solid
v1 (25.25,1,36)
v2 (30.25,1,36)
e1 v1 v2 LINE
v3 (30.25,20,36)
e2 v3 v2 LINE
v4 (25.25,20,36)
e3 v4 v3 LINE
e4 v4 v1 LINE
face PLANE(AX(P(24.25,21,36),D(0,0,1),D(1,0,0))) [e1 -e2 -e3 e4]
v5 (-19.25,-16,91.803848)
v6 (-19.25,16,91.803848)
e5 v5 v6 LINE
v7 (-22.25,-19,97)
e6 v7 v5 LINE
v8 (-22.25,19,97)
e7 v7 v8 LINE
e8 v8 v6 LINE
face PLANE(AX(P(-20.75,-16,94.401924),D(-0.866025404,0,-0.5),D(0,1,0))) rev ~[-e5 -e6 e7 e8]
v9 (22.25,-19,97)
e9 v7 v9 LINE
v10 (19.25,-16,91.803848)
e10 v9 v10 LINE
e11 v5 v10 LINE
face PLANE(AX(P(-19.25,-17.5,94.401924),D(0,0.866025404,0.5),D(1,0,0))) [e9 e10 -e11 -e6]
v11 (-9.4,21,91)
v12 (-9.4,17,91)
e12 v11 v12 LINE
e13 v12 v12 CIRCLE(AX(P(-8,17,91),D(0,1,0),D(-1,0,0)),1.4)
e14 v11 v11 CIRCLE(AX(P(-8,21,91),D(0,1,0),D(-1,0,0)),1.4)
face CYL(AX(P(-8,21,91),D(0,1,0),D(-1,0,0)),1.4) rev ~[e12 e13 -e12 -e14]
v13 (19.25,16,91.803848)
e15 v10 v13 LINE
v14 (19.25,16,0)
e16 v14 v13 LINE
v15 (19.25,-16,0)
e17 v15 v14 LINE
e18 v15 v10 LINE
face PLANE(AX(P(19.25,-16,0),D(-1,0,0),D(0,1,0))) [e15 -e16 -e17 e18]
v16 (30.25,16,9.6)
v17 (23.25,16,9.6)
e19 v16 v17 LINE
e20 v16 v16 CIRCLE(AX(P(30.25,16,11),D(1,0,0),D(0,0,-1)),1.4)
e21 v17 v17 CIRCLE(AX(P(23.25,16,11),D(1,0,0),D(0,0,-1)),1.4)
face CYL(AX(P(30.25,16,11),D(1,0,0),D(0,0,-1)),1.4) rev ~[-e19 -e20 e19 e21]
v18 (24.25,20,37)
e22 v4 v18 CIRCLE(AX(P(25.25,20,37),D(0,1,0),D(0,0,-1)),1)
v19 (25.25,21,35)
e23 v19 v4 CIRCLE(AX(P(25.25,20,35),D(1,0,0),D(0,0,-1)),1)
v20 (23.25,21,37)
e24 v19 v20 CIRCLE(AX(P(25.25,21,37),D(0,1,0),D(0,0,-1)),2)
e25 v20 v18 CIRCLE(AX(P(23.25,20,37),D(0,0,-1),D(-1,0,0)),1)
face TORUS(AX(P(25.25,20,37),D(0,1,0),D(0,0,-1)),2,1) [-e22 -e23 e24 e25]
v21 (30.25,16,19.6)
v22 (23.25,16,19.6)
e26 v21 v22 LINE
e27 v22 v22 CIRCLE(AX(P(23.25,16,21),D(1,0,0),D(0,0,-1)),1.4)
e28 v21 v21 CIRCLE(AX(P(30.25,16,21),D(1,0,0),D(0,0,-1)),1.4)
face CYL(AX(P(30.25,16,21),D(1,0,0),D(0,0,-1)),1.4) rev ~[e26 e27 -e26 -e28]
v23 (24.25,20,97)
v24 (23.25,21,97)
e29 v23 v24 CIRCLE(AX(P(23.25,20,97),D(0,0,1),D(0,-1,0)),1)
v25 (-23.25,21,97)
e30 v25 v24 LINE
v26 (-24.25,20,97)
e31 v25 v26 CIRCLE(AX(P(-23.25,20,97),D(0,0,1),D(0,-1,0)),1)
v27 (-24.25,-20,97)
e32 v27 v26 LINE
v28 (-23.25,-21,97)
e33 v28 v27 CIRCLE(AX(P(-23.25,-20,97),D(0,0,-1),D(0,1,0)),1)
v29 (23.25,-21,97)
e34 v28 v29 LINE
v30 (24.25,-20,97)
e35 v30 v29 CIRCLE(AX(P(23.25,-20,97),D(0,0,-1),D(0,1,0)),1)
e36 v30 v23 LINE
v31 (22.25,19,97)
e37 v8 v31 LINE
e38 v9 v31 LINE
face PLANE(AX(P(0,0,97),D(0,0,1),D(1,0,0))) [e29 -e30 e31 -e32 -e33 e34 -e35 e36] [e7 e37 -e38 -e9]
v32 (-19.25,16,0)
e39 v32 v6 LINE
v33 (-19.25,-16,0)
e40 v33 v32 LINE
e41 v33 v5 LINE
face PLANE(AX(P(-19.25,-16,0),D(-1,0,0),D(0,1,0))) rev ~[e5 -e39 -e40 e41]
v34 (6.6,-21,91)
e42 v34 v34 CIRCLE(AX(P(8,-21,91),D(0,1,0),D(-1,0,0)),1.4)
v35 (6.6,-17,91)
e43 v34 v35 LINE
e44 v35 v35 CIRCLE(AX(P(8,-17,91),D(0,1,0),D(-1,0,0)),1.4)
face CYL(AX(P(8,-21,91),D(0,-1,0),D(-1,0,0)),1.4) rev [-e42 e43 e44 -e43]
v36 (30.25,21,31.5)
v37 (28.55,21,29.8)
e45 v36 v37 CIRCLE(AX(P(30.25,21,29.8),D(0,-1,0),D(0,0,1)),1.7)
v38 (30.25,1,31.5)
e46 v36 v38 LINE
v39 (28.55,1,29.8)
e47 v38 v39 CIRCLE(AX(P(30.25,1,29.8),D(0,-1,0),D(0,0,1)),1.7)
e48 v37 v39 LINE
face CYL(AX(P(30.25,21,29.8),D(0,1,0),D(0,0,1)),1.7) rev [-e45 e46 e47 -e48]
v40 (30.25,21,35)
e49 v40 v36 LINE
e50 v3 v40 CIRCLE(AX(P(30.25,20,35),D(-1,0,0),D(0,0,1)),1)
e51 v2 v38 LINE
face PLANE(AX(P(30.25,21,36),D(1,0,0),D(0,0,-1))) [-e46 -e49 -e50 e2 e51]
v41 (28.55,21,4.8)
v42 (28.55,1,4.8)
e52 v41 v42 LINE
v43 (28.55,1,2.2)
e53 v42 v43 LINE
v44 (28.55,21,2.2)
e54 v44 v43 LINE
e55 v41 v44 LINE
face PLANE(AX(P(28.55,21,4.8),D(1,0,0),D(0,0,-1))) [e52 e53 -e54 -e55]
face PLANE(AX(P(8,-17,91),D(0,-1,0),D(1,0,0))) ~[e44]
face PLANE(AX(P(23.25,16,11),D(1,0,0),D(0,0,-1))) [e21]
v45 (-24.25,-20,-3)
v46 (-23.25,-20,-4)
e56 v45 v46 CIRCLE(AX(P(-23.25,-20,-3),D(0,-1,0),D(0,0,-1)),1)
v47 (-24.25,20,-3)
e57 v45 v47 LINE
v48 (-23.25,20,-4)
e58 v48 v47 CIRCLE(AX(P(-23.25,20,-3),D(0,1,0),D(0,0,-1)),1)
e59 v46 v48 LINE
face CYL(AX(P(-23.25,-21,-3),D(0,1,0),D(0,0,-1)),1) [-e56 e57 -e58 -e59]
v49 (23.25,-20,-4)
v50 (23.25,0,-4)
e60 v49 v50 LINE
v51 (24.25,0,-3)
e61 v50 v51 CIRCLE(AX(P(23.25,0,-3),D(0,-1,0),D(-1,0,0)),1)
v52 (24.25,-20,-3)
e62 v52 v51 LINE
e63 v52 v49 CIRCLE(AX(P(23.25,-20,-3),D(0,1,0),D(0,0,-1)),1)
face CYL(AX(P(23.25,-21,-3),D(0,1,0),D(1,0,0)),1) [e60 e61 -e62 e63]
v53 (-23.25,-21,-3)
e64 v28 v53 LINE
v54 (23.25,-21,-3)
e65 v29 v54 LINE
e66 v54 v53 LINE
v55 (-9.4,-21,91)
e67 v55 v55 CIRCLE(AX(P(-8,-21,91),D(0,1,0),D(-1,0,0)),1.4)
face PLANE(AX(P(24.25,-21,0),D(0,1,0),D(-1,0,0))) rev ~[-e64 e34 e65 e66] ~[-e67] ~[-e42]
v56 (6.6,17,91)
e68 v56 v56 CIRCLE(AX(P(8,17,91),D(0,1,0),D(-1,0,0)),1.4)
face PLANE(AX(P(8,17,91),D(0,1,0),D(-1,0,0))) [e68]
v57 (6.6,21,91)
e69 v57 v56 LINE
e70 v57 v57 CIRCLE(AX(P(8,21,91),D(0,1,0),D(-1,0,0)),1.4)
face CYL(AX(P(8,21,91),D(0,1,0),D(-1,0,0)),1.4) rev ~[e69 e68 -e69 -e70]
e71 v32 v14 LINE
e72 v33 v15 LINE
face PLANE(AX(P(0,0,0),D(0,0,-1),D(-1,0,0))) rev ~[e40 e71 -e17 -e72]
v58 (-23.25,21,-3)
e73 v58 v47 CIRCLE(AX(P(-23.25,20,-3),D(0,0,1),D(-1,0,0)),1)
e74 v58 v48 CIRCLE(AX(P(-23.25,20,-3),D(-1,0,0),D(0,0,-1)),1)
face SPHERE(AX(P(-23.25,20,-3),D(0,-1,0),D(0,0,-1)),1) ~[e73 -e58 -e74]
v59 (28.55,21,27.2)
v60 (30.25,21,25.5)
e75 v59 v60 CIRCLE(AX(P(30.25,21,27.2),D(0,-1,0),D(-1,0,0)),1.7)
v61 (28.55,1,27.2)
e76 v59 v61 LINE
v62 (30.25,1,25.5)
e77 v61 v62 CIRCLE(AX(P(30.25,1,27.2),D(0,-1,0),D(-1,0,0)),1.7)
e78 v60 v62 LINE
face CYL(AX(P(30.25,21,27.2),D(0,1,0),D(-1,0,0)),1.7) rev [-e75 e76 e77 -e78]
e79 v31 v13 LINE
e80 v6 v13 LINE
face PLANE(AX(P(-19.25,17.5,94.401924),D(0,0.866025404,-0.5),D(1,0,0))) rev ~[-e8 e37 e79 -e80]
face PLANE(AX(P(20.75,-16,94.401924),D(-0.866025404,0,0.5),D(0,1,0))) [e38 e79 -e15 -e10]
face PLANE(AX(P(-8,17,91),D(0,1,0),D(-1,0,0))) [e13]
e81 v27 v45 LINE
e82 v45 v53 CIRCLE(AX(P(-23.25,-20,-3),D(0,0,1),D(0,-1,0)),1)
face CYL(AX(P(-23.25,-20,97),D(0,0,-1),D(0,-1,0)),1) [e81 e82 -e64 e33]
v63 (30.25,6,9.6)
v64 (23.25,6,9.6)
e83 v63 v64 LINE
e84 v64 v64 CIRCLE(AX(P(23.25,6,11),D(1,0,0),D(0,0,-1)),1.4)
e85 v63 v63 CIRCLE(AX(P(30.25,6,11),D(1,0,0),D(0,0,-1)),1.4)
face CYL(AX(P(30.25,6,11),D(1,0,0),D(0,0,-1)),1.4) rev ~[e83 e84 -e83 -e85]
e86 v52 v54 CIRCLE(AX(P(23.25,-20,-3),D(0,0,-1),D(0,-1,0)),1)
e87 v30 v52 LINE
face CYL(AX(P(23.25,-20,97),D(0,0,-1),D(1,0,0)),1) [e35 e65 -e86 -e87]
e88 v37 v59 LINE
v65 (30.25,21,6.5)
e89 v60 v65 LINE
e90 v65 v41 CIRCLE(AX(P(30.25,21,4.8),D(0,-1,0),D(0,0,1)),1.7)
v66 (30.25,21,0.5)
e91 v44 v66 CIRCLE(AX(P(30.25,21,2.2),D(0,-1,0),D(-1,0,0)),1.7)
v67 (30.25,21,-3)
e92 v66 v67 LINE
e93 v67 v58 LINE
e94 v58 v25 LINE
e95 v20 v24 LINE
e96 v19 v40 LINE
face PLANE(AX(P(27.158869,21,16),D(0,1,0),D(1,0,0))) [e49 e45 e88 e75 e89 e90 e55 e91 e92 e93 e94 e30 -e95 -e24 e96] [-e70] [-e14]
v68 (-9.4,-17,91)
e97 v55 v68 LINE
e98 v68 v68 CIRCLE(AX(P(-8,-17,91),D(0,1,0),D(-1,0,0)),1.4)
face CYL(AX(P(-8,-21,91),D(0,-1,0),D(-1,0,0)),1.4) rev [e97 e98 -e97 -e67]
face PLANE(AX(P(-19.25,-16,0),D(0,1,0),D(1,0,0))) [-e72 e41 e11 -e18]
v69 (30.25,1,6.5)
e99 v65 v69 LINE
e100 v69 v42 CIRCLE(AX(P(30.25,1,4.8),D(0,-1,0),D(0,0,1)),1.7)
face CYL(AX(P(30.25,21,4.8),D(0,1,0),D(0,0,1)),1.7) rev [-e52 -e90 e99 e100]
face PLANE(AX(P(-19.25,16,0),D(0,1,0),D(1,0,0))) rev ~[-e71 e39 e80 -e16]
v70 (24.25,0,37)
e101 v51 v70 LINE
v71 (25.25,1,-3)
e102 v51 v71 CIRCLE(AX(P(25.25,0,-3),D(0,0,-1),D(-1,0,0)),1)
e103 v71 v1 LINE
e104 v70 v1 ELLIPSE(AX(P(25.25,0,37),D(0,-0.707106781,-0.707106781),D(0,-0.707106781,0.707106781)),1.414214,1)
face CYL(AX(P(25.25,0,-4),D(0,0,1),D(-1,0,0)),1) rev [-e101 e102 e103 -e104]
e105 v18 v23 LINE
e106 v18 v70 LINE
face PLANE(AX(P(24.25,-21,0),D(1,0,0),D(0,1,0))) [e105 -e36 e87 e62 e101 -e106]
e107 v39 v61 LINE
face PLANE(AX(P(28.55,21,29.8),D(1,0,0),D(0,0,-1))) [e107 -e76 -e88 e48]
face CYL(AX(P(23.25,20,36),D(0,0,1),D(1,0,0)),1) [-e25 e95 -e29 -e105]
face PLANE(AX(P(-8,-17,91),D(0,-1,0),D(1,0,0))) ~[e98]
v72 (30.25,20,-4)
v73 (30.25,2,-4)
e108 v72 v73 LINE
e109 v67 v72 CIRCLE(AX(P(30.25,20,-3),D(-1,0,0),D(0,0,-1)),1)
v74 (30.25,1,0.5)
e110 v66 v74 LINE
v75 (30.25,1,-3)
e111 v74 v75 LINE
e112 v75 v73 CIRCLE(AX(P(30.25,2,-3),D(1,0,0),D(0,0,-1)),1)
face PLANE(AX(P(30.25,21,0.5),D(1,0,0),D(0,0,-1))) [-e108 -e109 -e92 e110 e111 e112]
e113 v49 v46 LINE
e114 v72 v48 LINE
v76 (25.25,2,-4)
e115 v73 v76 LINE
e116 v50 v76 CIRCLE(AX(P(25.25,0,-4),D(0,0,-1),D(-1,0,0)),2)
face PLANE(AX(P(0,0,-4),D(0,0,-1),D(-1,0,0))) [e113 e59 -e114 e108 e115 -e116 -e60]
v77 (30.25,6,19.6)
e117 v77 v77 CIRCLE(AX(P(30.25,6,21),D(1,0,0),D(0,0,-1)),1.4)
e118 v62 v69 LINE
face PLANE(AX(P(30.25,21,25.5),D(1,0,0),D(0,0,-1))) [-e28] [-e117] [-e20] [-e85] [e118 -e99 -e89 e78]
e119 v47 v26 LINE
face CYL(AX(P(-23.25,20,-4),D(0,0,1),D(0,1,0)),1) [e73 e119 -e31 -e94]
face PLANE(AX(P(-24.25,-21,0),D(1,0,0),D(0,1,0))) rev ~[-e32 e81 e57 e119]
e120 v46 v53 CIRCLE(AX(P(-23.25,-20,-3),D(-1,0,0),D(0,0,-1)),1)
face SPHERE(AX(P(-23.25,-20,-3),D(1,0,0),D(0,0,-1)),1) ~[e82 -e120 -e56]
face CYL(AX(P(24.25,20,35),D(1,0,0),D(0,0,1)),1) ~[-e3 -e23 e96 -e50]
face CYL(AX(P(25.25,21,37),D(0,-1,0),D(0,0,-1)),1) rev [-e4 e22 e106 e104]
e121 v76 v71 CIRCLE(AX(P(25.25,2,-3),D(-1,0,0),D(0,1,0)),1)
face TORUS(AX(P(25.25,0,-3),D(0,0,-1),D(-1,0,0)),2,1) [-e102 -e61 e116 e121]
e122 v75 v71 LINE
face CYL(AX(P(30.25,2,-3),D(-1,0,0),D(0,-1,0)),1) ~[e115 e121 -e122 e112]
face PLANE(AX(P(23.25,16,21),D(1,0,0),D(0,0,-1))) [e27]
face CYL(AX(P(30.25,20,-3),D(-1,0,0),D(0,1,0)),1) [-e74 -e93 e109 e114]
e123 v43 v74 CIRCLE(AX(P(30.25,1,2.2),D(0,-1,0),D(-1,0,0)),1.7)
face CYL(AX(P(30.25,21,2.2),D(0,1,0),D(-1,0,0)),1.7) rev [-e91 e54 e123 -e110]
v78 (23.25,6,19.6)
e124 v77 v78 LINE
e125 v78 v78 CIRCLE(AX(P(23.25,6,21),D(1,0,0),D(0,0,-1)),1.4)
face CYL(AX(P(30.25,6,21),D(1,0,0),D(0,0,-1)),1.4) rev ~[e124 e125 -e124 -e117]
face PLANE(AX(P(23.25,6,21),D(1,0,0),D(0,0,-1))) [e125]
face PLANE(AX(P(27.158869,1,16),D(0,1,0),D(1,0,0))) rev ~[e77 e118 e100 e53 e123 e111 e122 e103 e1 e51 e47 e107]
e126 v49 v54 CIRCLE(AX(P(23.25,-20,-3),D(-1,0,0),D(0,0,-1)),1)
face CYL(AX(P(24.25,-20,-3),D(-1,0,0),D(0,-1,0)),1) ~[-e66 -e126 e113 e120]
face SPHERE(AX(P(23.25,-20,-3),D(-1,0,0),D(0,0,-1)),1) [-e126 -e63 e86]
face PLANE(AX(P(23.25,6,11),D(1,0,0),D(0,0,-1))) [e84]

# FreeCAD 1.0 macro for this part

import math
import FreeCAD as App
import Part
import Sketcher

V = App.Vector


def edges_at(feature, points):
    """Names of the edges that pass closest to the given points."""
    edges = feature.Shape.Edges
    near = lambda p: min(range(len(edges)), key=lambda i: edges[i].distToShape(Part.Vertex(*p))[0])
    return sorted({f"Edge{near(p) + 1}" for p in points})

doc = App.newDocument("Part")
body = doc.addObject("PartDesign::Body", "Body")

sketch1 = body.newObject("Sketcher::SketchObject", "Sketch")
sketch1.AttachmentSupport = (doc.getObject("XY_Plane"), [""])
sketch1.MapMode = "FlatFace"
sketch1.addGeometry([
    Part.LineSegment(V(-24, 21, 0), V(-24, -21, 0)),
    Part.LineSegment(V(-24, -21, 0), V(24, -21, 0)),
    Part.LineSegment(V(24, -21, 0), V(24, 21, 0)),
    Part.LineSegment(V(24, 21, 0), V(-24, 21, 0)),
    Part.LineSegment(V(19, -16, 0), V(-19, -16, 0)),
    Part.LineSegment(V(-19, -16, 0), V(-19, 16, 0)),
    Part.LineSegment(V(-19, 16, 0), V(19, 16, 0)),
    Part.LineSegment(V(19, 16, 0), V(19, -16, 0)),
], False)
sketch1.addConstraint([
    Sketcher.Constraint("Coincident", 0, 2, 1, 1),
    Sketcher.Constraint("Coincident", 1, 2, 2, 1),
    Sketcher.Constraint("Coincident", 2, 2, 3, 1),
    Sketcher.Constraint("Coincident", 3, 2, 0, 1),
    Sketcher.Constraint("Coincident", 4, 2, 5, 1),
    Sketcher.Constraint("Coincident", 5, 2, 6, 1),
    Sketcher.Constraint("Coincident", 6, 2, 7, 1),
    Sketcher.Constraint("Coincident", 7, 2, 4, 1),
    Sketcher.Constraint("Vertical", 0),
    Sketcher.Constraint("Horizontal", 1),
    Sketcher.Constraint("Vertical", 2),
    Sketcher.Constraint("Horizontal", 3),
    Sketcher.Constraint("Horizontal", 4),
    Sketcher.Constraint("Vertical", 5),
    Sketcher.Constraint("Horizontal", 6),
    Sketcher.Constraint("Vertical", 7),
    Sketcher.Constraint("Symmetric", 0, 2, 2, 2, -1, 1),
    Sketcher.Constraint("Symmetric", 4, 2, 6, 2, -1, 1),
    Sketcher.Constraint("DistanceY", 0, 2, 0, 1, 42.0),
    Sketcher.Constraint("DistanceY", 5, 1, 5, 2, 32.0),
    Sketcher.Constraint("DistanceX", 1, 1, 1, 2, 48.5),
    Sketcher.Constraint("DistanceX", 4, 2, 4, 1, 38.5),
])
pad1 = body.newObject("PartDesign::Pad", "Pad")
pad1.Profile = sketch1
pad1.Length = 97

sketch2 = body.newObject("Sketcher::SketchObject", "Sketch001")
sketch2.AttachmentSupport = (doc.getObject("XY_Plane"), [""])
sketch2.MapMode = "FlatFace"
sketch2.addGeometry([
    Part.LineSegment(V(24, 21, 0), V(24, -21, 0)),
    Part.LineSegment(V(24, -21, 0), V(-24, -21, 0)),
    Part.LineSegment(V(-24, -21, 0), V(-24, 21, 0)),
    Part.LineSegment(V(-24, 21, 0), V(24, 21, 0)),
], False)
sketch2.addConstraint([
    Sketcher.Constraint("Coincident", 0, 2, 1, 1),
    Sketcher.Constraint("Coincident", 1, 2, 2, 1),
    Sketcher.Constraint("Coincident", 2, 2, 3, 1),
    Sketcher.Constraint("Coincident", 3, 2, 0, 1),
    Sketcher.Constraint("Vertical", 0),
    Sketcher.Constraint("Horizontal", 1),
    Sketcher.Constraint("Vertical", 2),
    Sketcher.Constraint("Horizontal", 3),
    Sketcher.Constraint("Symmetric", 0, 2, 2, 2, -1, 1),
    Sketcher.Constraint("DistanceY", 0, 2, 0, 1, 42.0),
    Sketcher.Constraint("DistanceX", 1, 2, 1, 1, 48.5),
])
pad2 = body.newObject("PartDesign::Pad", "Pad001")
pad2.Profile = sketch2
pad2.Length = 4
pad2.Reversed = True

sketch3 = body.newObject("Sketcher::SketchObject", "Sketch002")
sketch3.AttachmentSupport = (doc.getObject("XZ_Plane"), [""])
sketch3.MapMode = "FlatFace"
sketch3.AttachmentOffset = App.Placement(V(0, 0, -21), App.Rotation())
sketch3.addGeometry([
    Part.LineSegment(V(24.2, -4, 0), V(24.2, 36, 0)),
    Part.LineSegment(V(24.2, 36, 0), V(30.2, 36, 0)),
    Part.LineSegment(V(30.2, 36, 0), V(30.2, 31.5, 0)),
    Part.ArcOfCircle(Part.Circle(V(30.2, 29.8, 0), V(0, 0, 1), 1.7), math.radians(90), math.radians(180)),
    Part.LineSegment(V(28.6, 29.8, 0), V(28.6, 27.2, 0)),
    Part.ArcOfCircle(Part.Circle(V(30.2, 27.2, 0), V(0, 0, 1), 1.7), math.radians(180), math.radians(270)),
    Part.LineSegment(V(30.2, 25.5, 0), V(30.2, 6.5, 0)),
    Part.ArcOfCircle(Part.Circle(V(30.2, 4.8, 0), V(0, 0, 1), 1.7), math.radians(90), math.radians(180)),
    Part.LineSegment(V(28.6, 4.8, 0), V(28.6, 2.2, 0)),
    Part.ArcOfCircle(Part.Circle(V(30.2, 2.2, 0), V(0, 0, 1), 1.7), math.radians(180), math.radians(270)),
    Part.LineSegment(V(30.2, 0.5, 0), V(30.2, -4, 0)),
    Part.LineSegment(V(30.2, -4, 0), V(24.2, -4, 0)),
], False)
sketch3.addConstraint([
    Sketcher.Constraint("Coincident", 0, 2, 1, 1),
    Sketcher.Constraint("Coincident", 1, 2, 2, 1),
    Sketcher.Constraint("Coincident", 2, 2, 3, 1),
    Sketcher.Constraint("Tangent", 3, 2, 4, 1),
    Sketcher.Constraint("Tangent", 4, 2, 5, 1),
    Sketcher.Constraint("Coincident", 5, 2, 6, 1),
    Sketcher.Constraint("Coincident", 6, 2, 7, 1),
    Sketcher.Constraint("Tangent", 7, 2, 8, 1),
    Sketcher.Constraint("Tangent", 8, 2, 9, 1),
    Sketcher.Constraint("Coincident", 9, 2, 10, 1),
    Sketcher.Constraint("Coincident", 10, 2, 11, 1),
    Sketcher.Constraint("Coincident", 11, 2, 0, 1),
    Sketcher.Constraint("Vertical", 0),
    Sketcher.Constraint("Horizontal", 1),
    Sketcher.Constraint("Vertical", 2),
    Sketcher.Constraint("Vertical", 4),
    Sketcher.Constraint("Vertical", 6),
    Sketcher.Constraint("Vertical", 8),
    Sketcher.Constraint("Vertical", 10),
    Sketcher.Constraint("Horizontal", 11),
    Sketcher.Constraint("Equal", 3, 5),
    Sketcher.Constraint("Equal", 5, 7),
    Sketcher.Constraint("Equal", 7, 9),
    Sketcher.Constraint("Vertical", 5, 3, 7, 3),
    Sketcher.Constraint("Vertical", 9, 3, 1, 2),
    Sketcher.Constraint("Vertical", 2, 2, 5, 2),
    Sketcher.Constraint("Vertical", 6, 2, 9, 2),
    Sketcher.Constraint("Equal", 4, 8),
    Sketcher.Constraint("Equal", 2, 10),
    Sketcher.Constraint("Radius", 3, 1.7),
    Sketcher.Constraint("DistanceX", 1, 1, 1, 2, 6.0),
    Sketcher.Constraint("DistanceY", 0, 1, 0, 2, 40.0),
    Sketcher.Constraint("DistanceY", 6, 2, 6, 1, 19.0),
    Sketcher.Constraint("DistanceY", 2, 2, 2, 1, 4.5),
    Sketcher.Constraint("DistanceY", -1, 1, 0, 2, 36.0),
    Sketcher.Constraint("DistanceX", -1, 1, 3, 3, 30.25),
])
pad3 = body.newObject("PartDesign::Pad", "Pad002")
pad3.Profile = sketch3
pad3.Length = 20

sketch4 = body.newObject("Sketcher::SketchObject", "Sketch003")
sketch4.AttachmentSupport = (doc.getObject("YZ_Plane"), [""])
sketch4.MapMode = "FlatFace"
sketch4.AttachmentOffset = App.Placement(V(0, 0, 30.25), App.Rotation())
sketch4.addGeometry([
    Part.Circle(V(16, 21, 0), V(0, 0, 1), 1.4),
    Part.Circle(V(16, 11, 0), V(0, 0, 1), 1.4),
    Part.Circle(V(6, 11, 0), V(0, 0, 1), 1.4),
    Part.Circle(V(6, 21, 0), V(0, 0, 1), 1.4),
], False)
sketch4.addConstraint([
    Sketcher.Constraint("Equal", 0, 1),
    Sketcher.Constraint("Equal", 1, 2),
    Sketcher.Constraint("Equal", 2, 3),
    Sketcher.Constraint("Horizontal", 1, 3, 2, 3),
    Sketcher.Constraint("Horizontal", 0, 3, 3, 3),
    Sketcher.Constraint("Vertical", 0, 3, 1, 3),
    Sketcher.Constraint("Vertical", 2, 3, 3, 3),
    Sketcher.Constraint("Diameter", 0, 2.8),
    Sketcher.Constraint("DistanceX", -1, 1, 0, 3, 16.0),
    Sketcher.Constraint("DistanceY", -1, 1, 0, 3, 21.0),
    Sketcher.Constraint("DistanceY", -1, 1, 1, 3, 11.0),
    Sketcher.Constraint("DistanceX", -1, 1, 2, 3, 6.0),
])
pocket1 = body.newObject("PartDesign::Pocket", "Pocket")
pocket1.Profile = sketch4
pocket1.Length = 7

sketch5 = body.newObject("Sketcher::SketchObject", "Sketch004")
sketch5.AttachmentSupport = (doc.getObject("XZ_Plane"), [""])
sketch5.MapMode = "FlatFace"
sketch5.AttachmentOffset = App.Placement(V(0, 0, -21), App.Rotation())
sketch5.addGeometry([
    Part.Circle(V(-8, 91, 0), V(0, 0, 1), 1.4),
    Part.Circle(V(8, 91, 0), V(0, 0, 1), 1.4),
], False)
sketch5.addConstraint([
    Sketcher.Constraint("Equal", 0, 1),
    Sketcher.Constraint("Symmetric", 0, 3, 1, 3, -2),
    Sketcher.Constraint("Diameter", 0, 2.8),
    Sketcher.Constraint("DistanceX", 0, 3, -1, 1, 8.0),
    Sketcher.Constraint("DistanceY", -1, 1, 0, 3, 91.0),
])
pocket2 = body.newObject("PartDesign::Pocket", "Pocket001")
pocket2.Profile = sketch5
pocket2.Length = 4
pocket2.Reversed = True
doc.recompute()

mirrored = body.newObject("PartDesign::Mirrored", "Mirrored")
mirrored.Originals = [pocket2]
mirrored.MirrorPlane = (doc.getObject("XZ_Plane"), [""])
body.Tip = mirrored
doc.recompute()

fillet = body.newObject("PartDesign::Fillet", "Fillet")
fillet.Base = (mirrored, edges_at(mirrored, [
    (0, -21, -4),
    (-24.25, 0, -4),
    (3, 21, -4),
    (24.25, -10, -4),
    (27.25, 1, -4),
    (24.25, 1, 16),
    (24.25, 11, 36),
    (27.25, 21, 36),
    (-24.25, 21, 46.5),
    (24.25, 21, 66.5),
    (24.25, -21, 46.5),
    (-24.25, -21, 46.5),
]))
fillet.Radius = 1
doc.recompute()

chamfer = body.newObject("PartDesign::Chamfer", "Chamfer")
chamfer.Base = (fillet, edges_at(fillet, [
    (-19.25, 0, 97),
    (0, -16, 97),
    (19.25, 0, 97),
    (0, 16, 97),
]))
chamfer.ChamferType = "Two distances"
chamfer.Size = 3
chamfer.Size2 = 5.196152

doc.recompute()
